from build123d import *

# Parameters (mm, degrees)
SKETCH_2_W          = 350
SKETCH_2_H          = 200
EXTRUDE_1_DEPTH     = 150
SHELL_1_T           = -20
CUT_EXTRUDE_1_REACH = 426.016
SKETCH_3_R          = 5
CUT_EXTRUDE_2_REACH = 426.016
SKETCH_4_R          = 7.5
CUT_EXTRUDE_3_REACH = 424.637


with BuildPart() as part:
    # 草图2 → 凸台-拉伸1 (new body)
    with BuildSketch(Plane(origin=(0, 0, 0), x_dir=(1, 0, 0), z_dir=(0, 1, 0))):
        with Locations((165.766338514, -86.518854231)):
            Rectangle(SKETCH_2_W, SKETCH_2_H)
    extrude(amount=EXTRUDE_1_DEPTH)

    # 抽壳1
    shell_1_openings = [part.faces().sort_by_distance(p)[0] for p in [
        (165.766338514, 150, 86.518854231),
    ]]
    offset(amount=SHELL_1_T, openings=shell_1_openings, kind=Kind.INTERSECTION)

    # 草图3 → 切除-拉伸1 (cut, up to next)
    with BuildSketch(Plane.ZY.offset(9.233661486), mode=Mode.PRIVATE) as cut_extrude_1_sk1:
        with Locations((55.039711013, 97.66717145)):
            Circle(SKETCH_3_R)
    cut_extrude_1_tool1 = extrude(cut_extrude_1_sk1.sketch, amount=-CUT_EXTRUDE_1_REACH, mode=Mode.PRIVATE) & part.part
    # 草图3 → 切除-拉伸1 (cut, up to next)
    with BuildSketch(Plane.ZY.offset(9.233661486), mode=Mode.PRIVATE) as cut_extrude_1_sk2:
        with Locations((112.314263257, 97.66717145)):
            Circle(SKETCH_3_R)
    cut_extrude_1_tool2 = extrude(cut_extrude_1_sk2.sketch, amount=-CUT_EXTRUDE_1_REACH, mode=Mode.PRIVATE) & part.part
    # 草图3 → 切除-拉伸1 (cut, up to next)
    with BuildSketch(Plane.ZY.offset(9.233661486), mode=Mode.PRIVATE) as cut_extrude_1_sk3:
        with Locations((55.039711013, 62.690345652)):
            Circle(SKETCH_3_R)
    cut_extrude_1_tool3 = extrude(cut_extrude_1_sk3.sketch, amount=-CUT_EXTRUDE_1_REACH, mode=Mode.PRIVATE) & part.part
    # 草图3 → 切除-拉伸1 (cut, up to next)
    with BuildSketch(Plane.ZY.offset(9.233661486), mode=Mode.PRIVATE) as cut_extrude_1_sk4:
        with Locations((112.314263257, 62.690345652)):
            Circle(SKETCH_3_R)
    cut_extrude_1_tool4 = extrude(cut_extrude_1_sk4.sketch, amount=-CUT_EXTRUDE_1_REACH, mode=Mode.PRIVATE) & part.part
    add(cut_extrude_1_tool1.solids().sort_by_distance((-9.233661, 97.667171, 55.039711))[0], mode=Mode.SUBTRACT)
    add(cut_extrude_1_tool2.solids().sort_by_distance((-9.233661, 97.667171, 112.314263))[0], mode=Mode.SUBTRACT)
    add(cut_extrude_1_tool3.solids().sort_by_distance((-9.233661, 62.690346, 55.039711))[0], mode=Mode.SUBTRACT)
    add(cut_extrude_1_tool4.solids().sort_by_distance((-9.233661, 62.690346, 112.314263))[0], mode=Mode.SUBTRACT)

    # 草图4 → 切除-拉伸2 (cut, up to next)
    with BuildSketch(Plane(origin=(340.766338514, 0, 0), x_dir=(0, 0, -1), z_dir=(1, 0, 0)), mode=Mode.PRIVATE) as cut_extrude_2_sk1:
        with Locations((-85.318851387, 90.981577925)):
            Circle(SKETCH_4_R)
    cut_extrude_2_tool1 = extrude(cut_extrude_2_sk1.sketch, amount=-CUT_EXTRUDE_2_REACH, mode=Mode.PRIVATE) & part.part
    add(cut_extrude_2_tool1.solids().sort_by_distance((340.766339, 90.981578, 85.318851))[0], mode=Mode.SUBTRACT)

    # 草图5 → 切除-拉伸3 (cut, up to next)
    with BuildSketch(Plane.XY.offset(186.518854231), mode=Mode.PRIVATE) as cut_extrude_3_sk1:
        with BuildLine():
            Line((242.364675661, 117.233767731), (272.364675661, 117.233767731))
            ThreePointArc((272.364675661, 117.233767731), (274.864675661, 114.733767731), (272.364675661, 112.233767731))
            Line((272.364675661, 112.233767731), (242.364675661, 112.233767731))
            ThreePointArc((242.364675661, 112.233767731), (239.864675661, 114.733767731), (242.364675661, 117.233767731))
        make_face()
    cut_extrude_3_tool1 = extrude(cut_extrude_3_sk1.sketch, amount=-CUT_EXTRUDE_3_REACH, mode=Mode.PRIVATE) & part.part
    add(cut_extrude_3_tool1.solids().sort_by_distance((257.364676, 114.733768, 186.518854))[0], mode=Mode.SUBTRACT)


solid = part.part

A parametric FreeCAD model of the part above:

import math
import FreeCAD as App
import Part
import Sketcher
Q = App.Units.Quantity


def faces_at(feature, points):
    """Names of the faces that lie closest to the given points."""
    faces = feature.Shape.Faces
    near = lambda p: min(range(len(faces)), key=lambda i: faces[i].distToShape(Part.Vertex(*p))[0])
    return sorted({f"Face{near(p) + 1}" for p in points})

doc = App.newDocument("Part")
params = doc.addObject("Spreadsheet::Sheet", "Params")
for row, (alias, value) in enumerate([
    ("sketch1_width", "350 mm"),
    ("sketch1_height", "200 mm"),
    ("pad1_length", "150 mm"),
    ("thickness_wall", "20 mm"),
    ("sketch2_diameter", "10 mm"),
    ("sketch3_diameter", "10 mm"),
    ("sketch4_diameter", "10 mm"),
    ("sketch5_diameter", "10 mm"),
    ("sketch6_diameter", "15 mm"),
    ("sketch7_radius", "2.5 mm"),
    ("sketch7_width", "30 mm"),
], start=1):
    params.set(f"A{row}", alias)
    params.set(f"B{row}", "=" + value)
    params.setAlias(f"B{row}", alias)

body = doc.addObject("PartDesign::Body", "Body")

# Sketch on XZ plane
sketch1 = body.newObject("Sketcher::SketchObject", "Sketch")
sketch1.AttachmentSupport = (doc.getObject("XZ_Plane"), [""])
sketch1.MapMode = "FlatFace"
sketch1.addGeometry(Part.LineSegment(App.Vector(-9, -13, 0), App.Vector(-9, 187, 0)), False)
sketch1.addGeometry(Part.LineSegment(App.Vector(-9, 187, 0), App.Vector(341, 187, 0)), False)
sketch1.addGeometry(Part.LineSegment(App.Vector(341, 187, 0), App.Vector(341, -13, 0)), False)
sketch1.addGeometry(Part.LineSegment(App.Vector(341, -13, 0), App.Vector(-9, -13, 0)), False)
sketch1.addConstraint(Sketcher.Constraint("Coincident", 0, 2, 1, 1))
sketch1.addConstraint(Sketcher.Constraint("Coincident", 1, 2, 2, 1))
sketch1.addConstraint(Sketcher.Constraint("Coincident", 2, 2, 3, 1))
sketch1.addConstraint(Sketcher.Constraint("Coincident", 3, 2, 0, 1))
sketch1.addConstraint(Sketcher.Constraint("Vertical", 0))
sketch1.addConstraint(Sketcher.Constraint("Horizontal", 1))
sketch1.addConstraint(Sketcher.Constraint("Vertical", 2))
sketch1.addConstraint(Sketcher.Constraint("Horizontal", 3))
sketch1.addConstraint(Sketcher.Constraint("DistanceX", 1, 1, 1, 2, Q("350 mm")))
sketch1.addConstraint(Sketcher.Constraint("DistanceY", 0, 1, 0, 2, Q("200 mm")))
sketch1.addConstraint(Sketcher.Constraint("DistanceX", 0, 2, -1, 1, Q("9.233661 mm")))
sketch1.addConstraint(Sketcher.Constraint("DistanceY", -1, 1, 0, 2, Q("186.518854 mm")))
sketch1.setExpression("Constraints[8]", "Params.sketch1_width")
sketch1.setExpression("Constraints[9]", "Params.sketch1_height")
pad1 = body.newObject("PartDesign::Pad", "Pad")
pad1.Profile = sketch1
pad1.setExpression("Length", "Params.pad1_length")
pad1.Reversed = True
doc.recompute()

thickness = body.newObject("PartDesign::Thickness", "Thickness")
thickness.Base = (pad1, faces_at(pad1, [(165.766, 150, 86.519)]))
thickness.setExpression("Value", "Params.thickness_wall")
thickness.Reversed = True
thickness.Join = "Intersection"

# Sketch on YZ plane
sketch2 = body.newObject("Sketcher::SketchObject", "Sketch001")
sketch2.AttachmentSupport = (doc.getObject("YZ_Plane"), [""])
sketch2.MapMode = "FlatFace"
sketch2.AttachmentOffset = App.Placement(App.Vector(0, 0, -9.233661), App.Rotation())
sketch2.addGeometry(Part.Circle(App.Vector(98, 55, 0), App.Vector(0, 0, 1), 5), False)
sketch2.addConstraint(Sketcher.Constraint("Diameter", 0, Q("10 mm")))
sketch2.addConstraint(Sketcher.Constraint("DistanceX", -1, 1, 0, 3, Q("97.667171 mm")))
sketch2.addConstraint(Sketcher.Constraint("DistanceY", -1, 1, 0, 3, Q("55.039711 mm")))
sketch2.setExpression("Constraints[0]", "Params.sketch2_diameter")
pocket1 = body.newObject("PartDesign::Pocket", "Pocket")
pocket1.Profile = sketch2
pocket1.Type = "UpToFirst"
pocket1.Reversed = True

# Sketch on YZ plane
sketch3 = body.newObject("Sketcher::SketchObject", "Sketch002")
sketch3.AttachmentSupport = (doc.getObject("YZ_Plane"), [""])
sketch3.MapMode = "FlatFace"
sketch3.AttachmentOffset = App.Placement(App.Vector(0, 0, -9.233661), App.Rotation())
sketch3.addGeometry(Part.Circle(App.Vector(98, 112, 0), App.Vector(0, 0, 1), 5), False)
sketch3.addConstraint(Sketcher.Constraint("Diameter", 0, Q("10 mm")))
sketch3.addConstraint(Sketcher.Constraint("DistanceX", -1, 1, 0, 3, Q("97.667171 mm")))
sketch3.addConstraint(Sketcher.Constraint("DistanceY", -1, 1, 0, 3, Q("112.314263 mm")))
sketch3.setExpression("Constraints[0]", "Params.sketch3_diameter")
pocket2 = body.newObject("PartDesign::Pocket", "Pocket001")
pocket2.Profile = sketch3
pocket2.Type = "UpToFirst"
pocket2.Reversed = True

# Sketch on YZ plane
sketch4 = body.newObject("Sketcher::SketchObject", "Sketch003")
sketch4.AttachmentSupport = (doc.getObject("YZ_Plane"), [""])
sketch4.MapMode = "FlatFace"
sketch4.AttachmentOffset = App.Placement(App.Vector(0, 0, -9.233661), App.Rotation())
sketch4.addGeometry(Part.Circle(App.Vector(63, 55, 0), App.Vector(0, 0, 1), 5), False)
sketch4.addConstraint(Sketcher.Constraint("Diameter", 0, Q("10 mm")))
sketch4.addConstraint(Sketcher.Constraint("DistanceY", -1, 1, 0, 3, Q("55.039711 mm")))
sketch4.addConstraint(Sketcher.Constraint("DistanceX", -1, 1, 0, 3, Q("62.690346 mm")))
sketch4.setExpression("Constraints[0]", "Params.sketch4_diameter")
pocket3 = body.newObject("PartDesign::Pocket", "Pocket002")
pocket3.Profile = sketch4
pocket3.Type = "UpToFirst"
pocket3.Reversed = True

# Sketch on YZ plane
sketch5 = body.newObject("Sketcher::SketchObject", "Sketch004")
sketch5.AttachmentSupport = (doc.getObject("YZ_Plane"), [""])
sketch5.MapMode = "FlatFace"
sketch5.AttachmentOffset = App.Placement(App.Vector(0, 0, -9.233661), App.Rotation())
sketch5.addGeometry(Part.Circle(App.Vector(63, 112, 0), App.Vector(0, 0, 1), 5), False)
sketch5.addConstraint(Sketcher.Constraint("Diameter", 0, Q("10 mm")))
sketch5.addConstraint(Sketcher.Constraint("DistanceX", -1, 1, 0, 3, Q("62.690346 mm")))
sketch5.addConstraint(Sketcher.Constraint("DistanceY", -1, 1, 0, 3, Q("112.314263 mm")))
sketch5.setExpression("Constraints[0]", "Params.sketch5_diameter")
pocket4 = body.newObject("PartDesign::Pocket", "Pocket003")
pocket4.Profile = sketch5
pocket4.Type = "UpToFirst"
pocket4.Reversed = True

# Sketch on YZ plane
sketch6 = body.newObject("Sketcher::SketchObject", "Sketch005")
sketch6.AttachmentSupport = (doc.getObject("YZ_Plane"), [""])
sketch6.MapMode = "FlatFace"
sketch6.AttachmentOffset = App.Placement(App.Vector(0, 0, 340.766339), App.Rotation())
sketch6.addGeometry(Part.Circle(App.Vector(91, 85, 0), App.Vector(0, 0, 1), 8), False)
sketch6.addConstraint(Sketcher.Constraint("Diameter", 0, Q("15 mm")))
sketch6.addConstraint(Sketcher.Constraint("DistanceY", -1, 1, 0, 3, Q("85.318851 mm")))
sketch6.addConstraint(Sketcher.Constraint("DistanceX", -1, 1, 0, 3, Q("90.981578 mm")))
sketch6.setExpression("Constraints[0]", "Params.sketch6_diameter")
pocket5 = body.newObject("PartDesign::Pocket", "Pocket004")
pocket5.Profile = sketch6
pocket5.Type = "UpToFirst"

# Sketch on XY plane
sketch7 = body.newObject("Sketcher::SketchObject", "Sketch006")
sketch7.AttachmentSupport = (doc.getObject("XY_Plane"), [""])
sketch7.MapMode = "FlatFace"
sketch7.AttachmentOffset = App.Placement(App.Vector(0, 0, 186.518854), App.Rotation())
sketch7.addGeometry(Part.LineSegment(App.Vector(272.4, 117.2, 0), App.Vector(242.4, 117.2, 0)), False)
sketch7.addGeometry(Part.ArcOfCircle(Part.Circle(App.Vector(242.4, 114.7, 0), App.Vector(0, 0, 1), 2.5), math.radians(90), math.radians(270)), False)
sketch7.addGeometry(Part.LineSegment(App.Vector(242.4, 112.2, 0), App.Vector(272.4, 112.2, 0)), False)
sketch7.addGeometry(Part.ArcOfCircle(Part.Circle(App.Vector(272.4, 114.7, 0), App.Vector(0, 0, 1), 2.5), math.radians(-90), math.radians(90)), False)
sketch7.addConstraint(Sketcher.Constraint("Tangent", 0, 2, 1, 1))
sketch7.addConstraint(Sketcher.Constraint("Tangent", 1, 2, 2, 1))
sketch7.addConstraint(Sketcher.Constraint("Tangent", 2, 2, 3, 1))
sketch7.addConstraint(Sketcher.Constraint("Tangent", 3, 2, 0, 1))
sketch7.addConstraint(Sketcher.Constraint("Horizontal", 0))
sketch7.addConstraint(Sketcher.Constraint("Horizontal", 2))
sketch7.addConstraint(Sketcher.Constraint("Radius", 1, Q("2.5 mm")))
sketch7.addConstraint(Sketcher.Constraint("DistanceX", 0, 2, 0, 1, Q("30 mm")))
sketch7.addConstraint(Sketcher.Constraint("DistanceX", -1, 1, 1, 3, Q("242.364676 mm")))
sketch7.addConstraint(Sketcher.Constraint("DistanceY", -1, 1, 1, 3, Q("114.733768 mm")))
sketch7.setExpression("Constraints[6]", "Params.sketch7_radius")
sketch7.setExpression("Constraints[7]", "Params.sketch7_width")
pocket6 = body.newObject("PartDesign::Pocket", "Pocket005")
pocket6.Profile = sketch7
pocket6.Type = "UpToFirst"

doc.recompute()
